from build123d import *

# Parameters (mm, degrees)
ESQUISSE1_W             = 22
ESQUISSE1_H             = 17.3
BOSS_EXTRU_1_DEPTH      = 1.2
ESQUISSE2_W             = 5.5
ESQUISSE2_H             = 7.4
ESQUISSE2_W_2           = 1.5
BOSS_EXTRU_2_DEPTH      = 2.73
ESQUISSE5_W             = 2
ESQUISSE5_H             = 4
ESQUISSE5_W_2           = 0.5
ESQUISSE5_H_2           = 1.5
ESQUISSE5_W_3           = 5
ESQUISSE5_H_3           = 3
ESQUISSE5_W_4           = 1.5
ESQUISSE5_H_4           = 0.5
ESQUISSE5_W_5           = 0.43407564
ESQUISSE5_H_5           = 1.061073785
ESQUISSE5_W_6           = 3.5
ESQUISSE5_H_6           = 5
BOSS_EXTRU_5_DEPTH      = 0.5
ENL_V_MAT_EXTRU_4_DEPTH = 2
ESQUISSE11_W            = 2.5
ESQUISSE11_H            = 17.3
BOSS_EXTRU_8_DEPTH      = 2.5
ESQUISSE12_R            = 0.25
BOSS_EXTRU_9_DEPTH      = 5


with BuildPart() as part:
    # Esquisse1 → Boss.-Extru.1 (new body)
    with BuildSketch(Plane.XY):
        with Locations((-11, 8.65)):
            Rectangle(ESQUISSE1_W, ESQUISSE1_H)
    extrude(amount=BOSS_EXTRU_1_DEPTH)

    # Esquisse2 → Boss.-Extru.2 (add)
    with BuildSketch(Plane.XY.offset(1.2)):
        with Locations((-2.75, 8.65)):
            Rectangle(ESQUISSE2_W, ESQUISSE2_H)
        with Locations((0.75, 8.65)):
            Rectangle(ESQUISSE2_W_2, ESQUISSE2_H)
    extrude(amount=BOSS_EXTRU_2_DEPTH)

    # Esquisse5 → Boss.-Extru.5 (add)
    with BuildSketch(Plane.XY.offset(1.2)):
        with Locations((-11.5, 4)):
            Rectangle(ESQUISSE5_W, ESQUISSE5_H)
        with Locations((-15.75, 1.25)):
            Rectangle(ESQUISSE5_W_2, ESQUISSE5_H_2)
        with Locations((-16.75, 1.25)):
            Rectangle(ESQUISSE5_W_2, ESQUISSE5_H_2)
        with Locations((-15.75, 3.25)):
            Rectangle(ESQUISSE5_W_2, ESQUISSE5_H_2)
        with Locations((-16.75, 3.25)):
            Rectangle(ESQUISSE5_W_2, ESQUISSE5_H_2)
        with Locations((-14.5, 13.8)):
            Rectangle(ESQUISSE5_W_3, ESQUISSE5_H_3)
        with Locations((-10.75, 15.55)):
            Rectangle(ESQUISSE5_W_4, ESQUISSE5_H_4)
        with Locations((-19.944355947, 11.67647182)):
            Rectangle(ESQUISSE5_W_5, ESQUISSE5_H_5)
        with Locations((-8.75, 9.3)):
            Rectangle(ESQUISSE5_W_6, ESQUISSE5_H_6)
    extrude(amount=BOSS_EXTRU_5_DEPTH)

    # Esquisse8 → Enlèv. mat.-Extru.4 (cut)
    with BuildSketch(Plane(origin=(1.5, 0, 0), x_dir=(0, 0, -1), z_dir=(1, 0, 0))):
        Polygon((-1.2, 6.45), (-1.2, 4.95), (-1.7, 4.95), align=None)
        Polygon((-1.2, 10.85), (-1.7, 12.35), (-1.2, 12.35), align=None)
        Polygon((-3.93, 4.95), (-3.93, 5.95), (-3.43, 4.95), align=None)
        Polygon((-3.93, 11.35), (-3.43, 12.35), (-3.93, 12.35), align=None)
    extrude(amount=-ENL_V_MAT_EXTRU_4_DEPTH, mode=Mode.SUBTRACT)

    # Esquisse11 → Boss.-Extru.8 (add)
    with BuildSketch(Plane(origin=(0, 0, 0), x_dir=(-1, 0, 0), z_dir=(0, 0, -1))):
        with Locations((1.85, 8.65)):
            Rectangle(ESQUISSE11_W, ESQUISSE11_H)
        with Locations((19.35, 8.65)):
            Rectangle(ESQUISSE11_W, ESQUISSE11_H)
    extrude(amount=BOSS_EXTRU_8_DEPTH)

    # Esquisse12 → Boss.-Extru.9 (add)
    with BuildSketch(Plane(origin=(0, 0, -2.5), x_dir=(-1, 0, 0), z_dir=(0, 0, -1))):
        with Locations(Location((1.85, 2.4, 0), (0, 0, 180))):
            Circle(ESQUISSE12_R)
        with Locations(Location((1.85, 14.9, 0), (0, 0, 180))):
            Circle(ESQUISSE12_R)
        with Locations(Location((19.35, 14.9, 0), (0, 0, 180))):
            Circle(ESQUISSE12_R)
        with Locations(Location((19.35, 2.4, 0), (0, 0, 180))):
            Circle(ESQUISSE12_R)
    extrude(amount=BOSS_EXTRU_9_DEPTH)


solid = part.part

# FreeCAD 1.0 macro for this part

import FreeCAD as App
import Part
import Sketcher
from FreeCAD import Vector
Q = App.Units.Quantity

doc = App.newDocument("Part")
body = doc.addObject("PartDesign::Body", "Body")

# Sketch on XY plane
sketch1 = body.newObject("Sketcher::SketchObject", "Sketch")
sketch1.AttachmentSupport = (doc.getObject("XY_Plane"), [""])
sketch1.MapMode = "FlatFace"
sketch1.addGeometry(Part.LineSegment(Vector(-22, 17, 0), Vector(-22, 0, 0)), False)
sketch1.addGeometry(Part.LineSegment(Vector(-22, 0, 0), Vector(0, 0, 0)), False)
sketch1.addGeometry(Part.LineSegment(Vector(0, 0, 0), Vector(0, 17, 0)), False)
sketch1.addGeometry(Part.LineSegment(Vector(0, 17, 0), Vector(-22, 17, 0)), False)
sketch1.addConstraint(Sketcher.Constraint("Coincident", 0, 2, 1, 1))
sketch1.addConstraint(Sketcher.Constraint("Coincident", 1, 2, 2, 1))
sketch1.addConstraint(Sketcher.Constraint("Coincident", 2, 2, 3, 1))
sketch1.addConstraint(Sketcher.Constraint("Coincident", 3, 2, 0, 1))
sketch1.addConstraint(Sketcher.Constraint("Vertical", 0))
sketch1.addConstraint(Sketcher.Constraint("Horizontal", 1))
sketch1.addConstraint(Sketcher.Constraint("Vertical", 2))
sketch1.addConstraint(Sketcher.Constraint("Horizontal", 3))
sketch1.addConstraint(Sketcher.Constraint("Coincident", 1, 2, -1, 1))
sketch1.addConstraint(Sketcher.Constraint("DistanceX", 1, 1, 1, 2, Q("22 mm")))
sketch1.addConstraint(Sketcher.Constraint("DistanceY", 0, 2, 0, 1, Q("17.3 mm")))
pad1 = body.newObject("PartDesign::Pad", "Pad")
pad1.Profile = sketch1
pad1.Length = 1.2

# Sketch on XY plane
sketch2 = body.newObject("Sketcher::SketchObject", "Sketch001")
sketch2.AttachmentSupport = (doc.getObject("XY_Plane"), [""])
sketch2.MapMode = "FlatFace"
sketch2.AttachmentOffset = App.Placement(Vector(0, 0, 1.2), App.Rotation())
sketch2.addGeometry(Part.LineSegment(Vector(-6, 12, 0), Vector(-6, 5, 0)), False)
sketch2.addGeometry(Part.LineSegment(Vector(-6, 5, 0), Vector(2, 5, 0)), False)
sketch2.addGeometry(Part.LineSegment(Vector(2, 5, 0), Vector(2, 12, 0)), False)
sketch2.addGeometry(Part.LineSegment(Vector(2, 12, 0), Vector(-6, 12, 0)), False)
sketch2.addConstraint(Sketcher.Constraint("Coincident", 0, 2, 1, 1))
sketch2.addConstraint(Sketcher.Constraint("Coincident", 1, 2, 2, 1))
sketch2.addConstraint(Sketcher.Constraint("Coincident", 2, 2, 3, 1))
sketch2.addConstraint(Sketcher.Constraint("Coincident", 3, 2, 0, 1))
sketch2.addConstraint(Sketcher.Constraint("Vertical", 0))
sketch2.addConstraint(Sketcher.Constraint("Horizontal", 1))
sketch2.addConstraint(Sketcher.Constraint("Vertical", 2))
sketch2.addConstraint(Sketcher.Constraint("Horizontal", 3))
sketch2.addConstraint(Sketcher.Constraint("DistanceX", 1, 1, 1, 2, Q("7 mm")))
sketch2.addConstraint(Sketcher.Constraint("DistanceY", 0, 2, 0, 1, Q("7.4 mm")))
sketch2.addConstraint(Sketcher.Constraint("DistanceX", 0, 2, -1, 1, Q("5.5 mm")))
sketch2.addConstraint(Sketcher.Constraint("DistanceY", -1, 1, 0, 2, Q("4.95 mm")))
pad2 = body.newObject("PartDesign::Pad", "Pad001")
pad2.Profile = sketch2
pad2.Length = 2.73

# Sketch on XY plane
sketch3 = body.newObject("Sketcher::SketchObject", "Sketch002")
sketch3.AttachmentSupport = (doc.getObject("XY_Plane"), [""])
sketch3.MapMode = "FlatFace"
sketch3.AttachmentOffset = App.Placement(Vector(0, 0, 1.2), App.Rotation())
sketch3.addGeometry(Part.LineSegment(Vector(-12.5, 6, 0), Vector(-12.5, 2, 0)), False)
sketch3.addGeometry(Part.LineSegment(Vector(-12.5, 2, 0), Vector(-10.5, 2, 0)), False)
sketch3.addGeometry(Part.LineSegment(Vector(-10.5, 2, 0), Vector(-10.5, 6, 0)), False)
sketch3.addGeometry(Part.LineSegment(Vector(-10.5, 6, 0), Vector(-12.5, 6, 0)), False)
sketch3.addGeometry(Part.LineSegment(Vector(-16, 2, 0), Vector(-16, 0.5, 0)), False)
sketch3.addGeometry(Part.LineSegment(Vector(-16, 0.5, 0), Vector(-15.5, 0.5, 0)), False)
sketch3.addGeometry(Part.LineSegment(Vector(-15.5, 0.5, 0), Vector(-15.5, 2, 0)), False)
sketch3.addGeometry(Part.LineSegment(Vector(-15.5, 2, 0), Vector(-16, 2, 0)), False)
sketch3.addGeometry(Part.LineSegment(Vector(-17, 2, 0), Vector(-17, 0.5, 0)), False)
sketch3.addGeometry(Part.LineSegment(Vector(-17, 0.5, 0), Vector(-16.5, 0.5, 0)), False)
sketch3.addGeometry(Part.LineSegment(Vector(-16.5, 0.5, 0), Vector(-16.5, 2, 0)), False)
sketch3.addGeometry(Part.LineSegment(Vector(-16.5, 2, 0), Vector(-17, 2, 0)), False)
sketch3.addGeometry(Part.LineSegment(Vector(-16, 4, 0), Vector(-16, 2.5, 0)), False)
sketch3.addGeometry(Part.LineSegment(Vector(-16, 2.5, 0), Vector(-15.5, 2.5, 0)), False)
sketch3.addGeometry(Part.LineSegment(Vector(-15.5, 2.5, 0), Vector(-15.5, 4, 0)), False)
sketch3.addGeometry(Part.LineSegment(Vector(-15.5, 4, 0), Vector(-16, 4, 0)), False)
sketch3.addGeometry(Part.LineSegment(Vector(-17, 4, 0), Vector(-17, 2.5, 0)), False)
sketch3.addGeometry(Part.LineSegment(Vector(-17, 2.5, 0), Vector(-16.5, 2.5, 0)), False)
sketch3.addGeometry(Part.LineSegment(Vector(-16.5, 2.5, 0), Vector(-16.5, 4, 0)), False)
sketch3.addGeometry(Part.LineSegment(Vector(-16.5, 4, 0), Vector(-17, 4, 0)), False)
sketch3.addGeometry(Part.LineSegment(Vector(-17, 15.3, 0), Vector(-17, 12.3, 0)), False)
sketch3.addGeometry(Part.LineSegment(Vector(-17, 12.3, 0), Vector(-12, 12.3, 0)), False)
sketch3.addGeometry(Part.LineSegment(Vector(-12, 12.3, 0), Vector(-12, 15.3, 0)), False)
sketch3.addGeometry(Part.LineSegment(Vector(-12, 15.3, 0), Vector(-17, 15.3, 0)), False)
sketch3.addGeometry(Part.LineSegment(Vector(-11.5, 15.8, 0), Vector(-11.5, 15.3, 0)), False)
sketch3.addGeometry(Part.LineSegment(Vector(-11.5, 15.3, 0), Vector(-10, 15.3, 0)), False)
sketch3.addGeometry(Part.LineSegment(Vector(-10, 15.3, 0), Vector(-10, 15.8, 0)), False)
sketch3.addGeometry(Part.LineSegment(Vector(-10, 15.8, 0), Vector(-11.5, 15.8, 0)), False)
sketch3.addGeometry(Part.LineSegment(Vector(-20.16, 12.21, 0), Vector(-20.16, 11.15, 0)), False)
sketch3.addGeometry(Part.LineSegment(Vector(-20.16, 11.15, 0), Vector(-19.73, 11.15, 0)), False)
sketch3.addGeometry(Part.LineSegment(Vector(-19.73, 11.15, 0), Vector(-19.73, 12.21, 0)), False)
sketch3.addGeometry(Part.LineSegment(Vector(-19.73, 12.21, 0), Vector(-20.16, 12.21, 0)), False)
sketch3.addGeometry(Part.LineSegment(Vector(-10.5, 11.8, 0), Vector(-10.5, 6.8, 0)), False)
sketch3.addGeometry(Part.LineSegment(Vector(-10.5, 6.8, 0), Vector(-7, 6.8, 0)), False)
sketch3.addGeometry(Part.LineSegment(Vector(-7, 6.8, 0), Vector(-7, 11.8, 0)), False)
sketch3.addGeometry(Part.LineSegment(Vector(-7, 11.8, 0), Vector(-10.5, 11.8, 0)), False)
sketch3.addConstraint(Sketcher.Constraint("Coincident", 0, 2, 1, 1))
sketch3.addConstraint(Sketcher.Constraint("Coincident", 1, 2, 2, 1))
sketch3.addConstraint(Sketcher.Constraint("Coincident", 2, 2, 3, 1))
sketch3.addConstraint(Sketcher.Constraint("Coincident", 3, 2, 0, 1))
sketch3.addConstraint(Sketcher.Constraint("Coincident", 4, 2, 5, 1))
sketch3.addConstraint(Sketcher.Constraint("Coincident", 5, 2, 6, 1))
sketch3.addConstraint(Sketcher.Constraint("Coincident", 6, 2, 7, 1))
sketch3.addConstraint(Sketcher.Constraint("Coincident", 7, 2, 4, 1))
sketch3.addConstraint(Sketcher.Constraint("Coincident", 8, 2, 9, 1))
sketch3.addConstraint(Sketcher.Constraint("Coincident", 9, 2, 10, 1))
sketch3.addConstraint(Sketcher.Constraint("Coincident", 10, 2, 11, 1))
sketch3.addConstraint(Sketcher.Constraint("Coincident", 11, 2, 8, 1))
sketch3.addConstraint(Sketcher.Constraint("Coincident", 12, 2, 13, 1))
sketch3.addConstraint(Sketcher.Constraint("Coincident", 13, 2, 14, 1))
sketch3.addConstraint(Sketcher.Constraint("Coincident", 14, 2, 15, 1))
sketch3.addConstraint(Sketcher.Constraint("Coincident", 15, 2, 12, 1))
sketch3.addConstraint(Sketcher.Constraint("Coincident", 16, 2, 17, 1))
sketch3.addConstraint(Sketcher.Constraint("Coincident", 17, 2, 18, 1))
sketch3.addConstraint(Sketcher.Constraint("Coincident", 18, 2, 19, 1))
sketch3.addConstraint(Sketcher.Constraint("Coincident", 19, 2, 16, 1))
sketch3.addConstraint(Sketcher.Constraint("Coincident", 20, 2, 21, 1))
sketch3.addConstraint(Sketcher.Constraint("Coincident", 21, 2, 22, 1))
sketch3.addConstraint(Sketcher.Constraint("Coincident", 22, 2, 23, 1))
sketch3.addConstraint(Sketcher.Constraint("Coincident", 23, 2, 20, 1))
sketch3.addConstraint(Sketcher.Constraint("Coincident", 24, 2, 25, 1))
sketch3.addConstraint(Sketcher.Constraint("Coincident", 25, 2, 26, 1))
sketch3.addConstraint(Sketcher.Constraint("Coincident", 26, 2, 27, 1))
sketch3.addConstraint(Sketcher.Constraint("Coincident", 27, 2, 24, 1))
sketch3.addConstraint(Sketcher.Constraint("Coincident", 28, 2, 29, 1))
sketch3.addConstraint(Sketcher.Constraint("Coincident", 29, 2, 30, 1))
sketch3.addConstraint(Sketcher.Constraint("Coincident", 30, 2, 31, 1))
sketch3.addConstraint(Sketcher.Constraint("Coincident", 31, 2, 28, 1))
sketch3.addConstraint(Sketcher.Constraint("Coincident", 32, 2, 33, 1))
sketch3.addConstraint(Sketcher.Constraint("Coincident", 33, 2, 34, 1))
sketch3.addConstraint(Sketcher.Constraint("Coincident", 34, 2, 35, 1))
sketch3.addConstraint(Sketcher.Constraint("Coincident", 35, 2, 32, 1))
sketch3.addConstraint(Sketcher.Constraint("Vertical", 0))
sketch3.addConstraint(Sketcher.Constraint("Horizontal", 1))
sketch3.addConstraint(Sketcher.Constraint("Vertical", 2))
sketch3.addConstraint(Sketcher.Constraint("Horizontal", 3))
sketch3.addConstraint(Sketcher.Constraint("Vertical", 4))
sketch3.addConstraint(Sketcher.Constraint("Horizontal", 5))
sketch3.addConstraint(Sketcher.Constraint("Vertical", 6))
sketch3.addConstraint(Sketcher.Constraint("Horizontal", 7))
sketch3.addConstraint(Sketcher.Constraint("Vertical", 8))
sketch3.addConstraint(Sketcher.Constraint("Horizontal", 9))
sketch3.addConstraint(Sketcher.Constraint("Vertical", 10))
sketch3.addConstraint(Sketcher.Constraint("Horizontal", 11))
sketch3.addConstraint(Sketcher.Constraint("Vertical", 12))
sketch3.addConstraint(Sketcher.Constraint("Horizontal", 13))
sketch3.addConstraint(Sketcher.Constraint("Vertical", 14))
sketch3.addConstraint(Sketcher.Constraint("Horizontal", 15))
sketch3.addConstraint(Sketcher.Constraint("Vertical", 16))
sketch3.addConstraint(Sketcher.Constraint("Horizontal", 17))
sketch3.addConstraint(Sketcher.Constraint("Vertical", 18))
sketch3.addConstraint(Sketcher.Constraint("Horizontal", 19))
sketch3.addConstraint(Sketcher.Constraint("Vertical", 20))
sketch3.addConstraint(Sketcher.Constraint("Horizontal", 21))
sketch3.addConstraint(Sketcher.Constraint("Vertical", 22))
sketch3.addConstraint(Sketcher.Constraint("Horizontal", 23))
sketch3.addConstraint(Sketcher.Constraint("Vertical", 24))
sketch3.addConstraint(Sketcher.Constraint("Horizontal", 25))
sketch3.addConstraint(Sketcher.Constraint("Vertical", 26))
sketch3.addConstraint(Sketcher.Constraint("Horizontal", 27))
sketch3.addConstraint(Sketcher.Constraint("Vertical", 28))
sketch3.addConstraint(Sketcher.Constraint("Horizontal", 29))
sketch3.addConstraint(Sketcher.Constraint("Vertical", 30))
sketch3.addConstraint(Sketcher.Constraint("Horizontal", 31))
sketch3.addConstraint(Sketcher.Constraint("Vertical", 32))
sketch3.addConstraint(Sketcher.Constraint("Horizontal", 33))
sketch3.addConstraint(Sketcher.Constraint("Vertical", 34))
sketch3.addConstraint(Sketcher.Constraint("Horizontal", 35))
sketch3.addConstraint(Sketcher.Constraint("Horizontal", 1, 2, 6, 2))
sketch3.addConstraint(Sketcher.Constraint("Horizontal", 5, 2, 8, 2))
sketch3.addConstraint(Sketcher.Constraint("Horizontal", 7, 2, 10, 2))
sketch3.addConstraint(Sketcher.Constraint("Horizontal", 13, 2, 16, 2))
sketch3.addConstraint(Sketcher.Constraint("Horizontal", 15, 2, 18, 2))
sketch3.addConstraint(Sketcher.Constraint("Horizontal", 23, 2, 24, 2))
sketch3.addConstraint(Sketcher.Constraint("Vertical", 7, 2, 12, 2))
sketch3.addConstraint(Sketcher.Constraint("Vertical", 6, 2, 13, 2))
sketch3.addConstraint(Sketcher.Constraint("Vertical", 11, 2, 16, 2))
sketch3.addConstraint(Sketcher.Constraint("Vertical", 10, 2, 17, 2))
sketch3.addConstraint(Sketcher.Constraint("Vertical", 19, 2, 20, 2))
sketch3.addConstraint(Sketcher.Constraint("Vertical", 2, 2, 32, 2))
sketch3.addConstraint(Sketcher.Constraint("Equal", 7, 9))
sketch3.addConstraint(Sketcher.Constraint("Equal", 27, 4))
sketch3.addConstraint(Sketcher.Constraint("Equal", 10, 12))
sketch3.addConstraint(Sketcher.Constraint("Equal", 19, 24))
sketch3.addConstraint(Sketcher.Constraint("Equal", 23, 32))
sketch3.addConstraint(Sketcher.Constraint("DistanceX", 1, 1, 1, 2, Q("2 mm")))
sketch3.addConstraint(Sketcher.Constraint("DistanceX", 21, 1, 21, 2, Q("5 mm")))
sketch3.addConstraint(Sketcher.Constraint("DistanceY", 0, 2, 0, 1, Q("4 mm")))
sketch3.addConstraint(Sketcher.Constraint("DistanceY", 20, 2, 20, 1, Q("3 mm")))
sketch3.addConstraint(Sketcher.Constraint("DistanceX", 5, 1, 5, 2, Q("0.5 mm")))
sketch3.addConstraint(Sketcher.Constraint("DistanceX", 25, 1, 25, 2, Q("1.5 mm")))
sketch3.addConstraint(Sketcher.Constraint("DistanceX", 33, 1, 33, 2, Q("3.5 mm")))
sketch3.addConstraint(Sketcher.Constraint("DistanceY", -1, 1, 0, 2, Q("2 mm")))
sketch3.addConstraint(Sketcher.Constraint("DistanceX", 4, 2, -1, 1, Q("16 mm")))
sketch3.addConstraint(Sketcher.Constraint("DistanceX", 8, 2, -1, 1, Q("17 mm")))
sketch3.addConstraint(Sketcher.Constraint("DistanceY", -1, 1, 14, 2, Q("4 mm")))
sketch3.addConstraint(Sketcher.Constraint("DistanceX", 25, 2, -1, 1, Q("10 mm")))
sketch3.addConstraint(Sketcher.Constraint("DistanceX", 33, 2, -1, 1, Q("7 mm")))
sketch3.addConstraint(Sketcher.Constraint("DistanceY", 34, 2, 26, 2, Q("4 mm")))
sketch3.addConstraint(Sketcher.Constraint("DistanceY", -1, 1, 20, 2, Q("12.3 mm")))
sketch3.addConstraint(Sketcher.Constraint("DistanceX", 29, 1, 29, 2, Q("0.434076 mm")))
sketch3.addConstraint(Sketcher.Constraint("DistanceY", 28, 2, 28, 1, Q("1.061074 mm")))
sketch3.addConstraint(Sketcher.Constraint("DistanceX", 29, 2, -1, 1, Q("19.727318 mm")))
sketch3.addConstraint(Sketcher.Constraint("DistanceY", -1, 1, 30, 2, Q("12.207009 mm")))
pad3 = body.newObject("PartDesign::Pad", "Pad002")
pad3.Profile = sketch3
pad3.Length = 0.5

# Sketch on YZ plane
sketch4 = body.newObject("Sketcher::SketchObject", "Sketch003")
sketch4.AttachmentSupport = (doc.getObject("YZ_Plane"), [""])
sketch4.MapMode = "FlatFace"
sketch4.AttachmentOffset = App.Placement(Vector(0, 0, 1.5), App.Rotation())
sketch4.addGeometry(Part.LineSegment(Vector(5, 1.2, 0), Vector(6.5, 1.2, 0)), False)
sketch4.addGeometry(Part.LineSegment(Vector(6.5, 1.2, 0), Vector(5, 1.7, 0)), False)
sketch4.addGeometry(Part.LineSegment(Vector(5, 1.7, 0), Vector(5, 1.2, 0)), False)
sketch4.addGeometry(Part.LineSegment(Vector(12.3, 1.7, 0), Vector(10.8, 1.2, 0)), False)
sketch4.addGeometry(Part.LineSegment(Vector(10.8, 1.2, 0), Vector(12.3, 1.2, 0)), False)
sketch4.addGeometry(Part.LineSegment(Vector(12.3, 1.2, 0), Vector(12.3, 1.7, 0)), False)
sketch4.addGeometry(Part.LineSegment(Vector(6, 3.9, 0), Vector(5, 3.9, 0)), False)
sketch4.addGeometry(Part.LineSegment(Vector(5, 3.9, 0), Vector(5, 3.4, 0)), False)
sketch4.addGeometry(Part.LineSegment(Vector(5, 3.4, 0), Vector(6, 3.9, 0)), False)
sketch4.addGeometry(Part.LineSegment(Vector(11.3, 3.9, 0), Vector(12.3, 3.4, 0)), False)
sketch4.addGeometry(Part.LineSegment(Vector(12.3, 3.4, 0), Vector(12.3, 3.9, 0)), False)
sketch4.addGeometry(Part.LineSegment(Vector(12.3, 3.9, 0), Vector(11.3, 3.9, 0)), False)
sketch4.addConstraint(Sketcher.Constraint("Coincident", 0, 2, 1, 1))
sketch4.addConstraint(Sketcher.Constraint("Coincident", 1, 2, 2, 1))
sketch4.addConstraint(Sketcher.Constraint("Coincident", 2, 2, 0, 1))
sketch4.addConstraint(Sketcher.Constraint("Coincident", 3, 2, 4, 1))
sketch4.addConstraint(Sketcher.Constraint("Coincident", 4, 2, 5, 1))
sketch4.addConstraint(Sketcher.Constraint("Coincident", 5, 2, 3, 1))
sketch4.addConstraint(Sketcher.Constraint("Coincident", 6, 2, 7, 1))
sketch4.addConstraint(Sketcher.Constraint("Coincident", 7, 2, 8, 1))
sketch4.addConstraint(Sketcher.Constraint("Coincident", 8, 2, 6, 1))
sketch4.addConstraint(Sketcher.Constraint("Coincident", 9, 2, 10, 1))
sketch4.addConstraint(Sketcher.Constraint("Coincident", 10, 2, 11, 1))
sketch4.addConstraint(Sketcher.Constraint("Coincident", 11, 2, 9, 1))
sketch4.addConstraint(Sketcher.Constraint("Horizontal", 0))
sketch4.addConstraint(Sketcher.Constraint("Vertical", 2))
sketch4.addConstraint(Sketcher.Constraint("Horizontal", 4))
sketch4.addConstraint(Sketcher.Constraint("Vertical", 5))
sketch4.addConstraint(Sketcher.Constraint("Horizontal", 6))
sketch4.addConstraint(Sketcher.Constraint("Vertical", 7))
sketch4.addConstraint(Sketcher.Constraint("Vertical", 10))
sketch4.addConstraint(Sketcher.Constraint("Horizontal", 11))
sketch4.addConstraint(Sketcher.Constraint("Horizontal", 2, 2, 3, 2))
sketch4.addConstraint(Sketcher.Constraint("Horizontal", 1, 2, 5, 2))
sketch4.addConstraint(Sketcher.Constraint("Horizontal", 7, 2, 9, 2))
sketch4.addConstraint(Sketcher.Constraint("Horizontal", 8, 2, 10, 2))
sketch4.addConstraint(Sketcher.Constraint("Vertical", 2, 2, 6, 2))
sketch4.addConstraint(Sketcher.Constraint("Vertical", 5, 2, 9, 2))
sketch4.addConstraint(Sketcher.Constraint("Equal", 0, 4))
sketch4.addConstraint(Sketcher.Constraint("Equal", 6, 11))
sketch4.addConstraint(Sketcher.Constraint("Equal", 5, 7))
sketch4.addConstraint(Sketcher.Constraint("DistanceX", 6, 2, 6, 1, Q("1 mm")))
sketch4.addConstraint(Sketcher.Constraint("DistanceX", 0, 1, 0, 2, Q("1.5 mm")))
sketch4.addConstraint(Sketcher.Constraint("DistanceY", 2, 2, 2, 1, Q("0.5 mm")))
sketch4.addConstraint(Sketcher.Constraint("DistanceY", -1, 1, 0, 2, Q("1.2 mm")))
sketch4.addConstraint(Sketcher.Constraint("DistanceX", 0, 2, 3, 2, Q("4.4 mm")))
sketch4.addConstraint(Sketcher.Constraint("DistanceX", -1, 1, 0, 2, Q("6.45 mm")))
sketch4.addConstraint(Sketcher.Constraint("DistanceY", -1, 1, 6, 2, Q("3.93 mm")))
pocket1 = body.newObject("PartDesign::Pocket", "Pocket")
pocket1.Profile = sketch4
pocket1.Length = 2

# Sketch on XY plane
sketch5 = body.newObject("Sketcher::SketchObject", "Sketch004")
sketch5.AttachmentSupport = (doc.getObject("XY_Plane"), [""])
sketch5.MapMode = "FlatFace"
sketch5.addGeometry(Part.LineSegment(Vector(-0.6, 17.3, 0), Vector(-0.6, 0, 0)), False)
sketch5.addGeometry(Part.LineSegment(Vector(-0.6, 0, 0), Vector(-3.1, 0, 0)), False)
sketch5.addGeometry(Part.LineSegment(Vector(-3.1, 0, 0), Vector(-3.1, 17.3, 0)), False)
sketch5.addGeometry(Part.LineSegment(Vector(-3.1, 17.3, 0), Vector(-0.6, 17.3, 0)), False)
sketch5.addGeometry(Part.LineSegment(Vector(-18.1, 17.3, 0), Vector(-18.1, 0, 0)), False)
sketch5.addGeometry(Part.LineSegment(Vector(-18.1, 0, 0), Vector(-20.6, 0, 0)), False)
sketch5.addGeometry(Part.LineSegment(Vector(-20.6, 0, 0), Vector(-20.6, 17.3, 0)), False)
sketch5.addGeometry(Part.LineSegment(Vector(-20.6, 17.3, 0), Vector(-18.1, 17.3, 0)), False)
sketch5.addConstraint(Sketcher.Constraint("Coincident", 0, 2, 1, 1))
sketch5.addConstraint(Sketcher.Constraint("Coincident", 1, 2, 2, 1))
sketch5.addConstraint(Sketcher.Constraint("Coincident", 2, 2, 3, 1))
sketch5.addConstraint(Sketcher.Constraint("Coincident", 3, 2, 0, 1))
sketch5.addConstraint(Sketcher.Constraint("Coincident", 4, 2, 5, 1))
sketch5.addConstraint(Sketcher.Constraint("Coincident", 5, 2, 6, 1))
sketch5.addConstraint(Sketcher.Constraint("Coincident", 6, 2, 7, 1))
sketch5.addConstraint(Sketcher.Constraint("Coincident", 7, 2, 4, 1))
sketch5.addConstraint(Sketcher.Constraint("Vertical", 0))
sketch5.addConstraint(Sketcher.Constraint("Horizontal", 1))
sketch5.addConstraint(Sketcher.Constraint("Vertical", 2))
sketch5.addConstraint(Sketcher.Constraint("Horizontal", 3))
sketch5.addConstraint(Sketcher.Constraint("Vertical", 4))
sketch5.addConstraint(Sketcher.Constraint("Horizontal", 5))
sketch5.addConstraint(Sketcher.Constraint("Vertical", 6))
sketch5.addConstraint(Sketcher.Constraint("Horizontal", 7))
sketch5.addConstraint(Sketcher.Constraint("PointOnObject", 0, 2, -1))
sketch5.addConstraint(Sketcher.Constraint("PointOnObject", 4, 2, -1))
sketch5.addConstraint(Sketcher.Constraint("Horizontal", 3, 2, 6, 2))
sketch5.addConstraint(Sketcher.Constraint("Equal", 3, 5))
sketch5.addConstraint(Sketcher.Constraint("DistanceX", 1, 2, 1, 1, Q("2.5 mm")))
sketch5.addConstraint(Sketcher.Constraint("DistanceY", 0, 2, 0, 1, Q("17.3 mm")))
sketch5.addConstraint(Sketcher.Constraint("DistanceX", 4, 2, 1, 2, Q("15 mm")))
sketch5.addConstraint(Sketcher.Constraint("DistanceX", 0, 2, -1, 1, Q("0.6 mm")))
pad4 = body.newObject("PartDesign::Pad", "Pad003")
pad4.Profile = sketch5
pad4.Length = 2.5
pad4.Reversed = True

# Sketch on XY plane
sketch6 = body.newObject("Sketcher::SketchObject", "Sketch005")
sketch6.AttachmentSupport = (doc.getObject("XY_Plane"), [""])
sketch6.MapMode = "FlatFace"
sketch6.AttachmentOffset = App.Placement(Vector(0, 0, -2.5), App.Rotation())
sketch6.addGeometry(Part.Circle(Vector(-1.85, 2.4, 0), Vector(0, 0, 1), 0.25), False)
sketch6.addGeometry(Part.Circle(Vector(-1.85, 14.9, 0), Vector(0, 0, 1), 0.25), False)
sketch6.addGeometry(Part.Circle(Vector(-19.35, 14.9, 0), Vector(0, 0, 1), 0.25), False)
sketch6.addGeometry(Part.Circle(Vector(-19.35, 2.4, 0), Vector(0, 0, 1), 0.25), False)
sketch6.addConstraint(Sketcher.Constraint("Equal", 0, 1))
sketch6.addConstraint(Sketcher.Constraint("Equal", 1, 2))
sketch6.addConstraint(Sketcher.Constraint("Equal", 2, 3))
sketch6.addConstraint(Sketcher.Constraint("Horizontal", 1, 3, 2, 3))
sketch6.addConstraint(Sketcher.Constraint("Horizontal", 0, 3, 3, 3))
sketch6.addConstraint(Sketcher.Constraint("Vertical", 0, 3, 1, 3))
sketch6.addConstraint(Sketcher.Constraint("Vertical", 2, 3, 3, 3))
sketch6.addConstraint(Sketcher.Constraint("Diameter", 0, Q("0.5 mm")))
sketch6.addConstraint(Sketcher.Constraint("DistanceY", -1, 1, 0, 3, Q("2.4 mm")))
sketch6.addConstraint(Sketcher.Constraint("DistanceY", -1, 1, 1, 3, Q("14.9 mm")))
sketch6.addConstraint(Sketcher.Constraint("DistanceX", 2, 3, 1, 3, Q("17.5 mm")))
sketch6.addConstraint(Sketcher.Constraint("DistanceX", 0, 3, -1, 1, Q("1.85 mm")))
pad5 = body.newObject("PartDesign::Pad", "Pad004")
pad5.Profile = sketch6
pad5.Length = 5
pad5.Reversed = True

doc.recompute()
